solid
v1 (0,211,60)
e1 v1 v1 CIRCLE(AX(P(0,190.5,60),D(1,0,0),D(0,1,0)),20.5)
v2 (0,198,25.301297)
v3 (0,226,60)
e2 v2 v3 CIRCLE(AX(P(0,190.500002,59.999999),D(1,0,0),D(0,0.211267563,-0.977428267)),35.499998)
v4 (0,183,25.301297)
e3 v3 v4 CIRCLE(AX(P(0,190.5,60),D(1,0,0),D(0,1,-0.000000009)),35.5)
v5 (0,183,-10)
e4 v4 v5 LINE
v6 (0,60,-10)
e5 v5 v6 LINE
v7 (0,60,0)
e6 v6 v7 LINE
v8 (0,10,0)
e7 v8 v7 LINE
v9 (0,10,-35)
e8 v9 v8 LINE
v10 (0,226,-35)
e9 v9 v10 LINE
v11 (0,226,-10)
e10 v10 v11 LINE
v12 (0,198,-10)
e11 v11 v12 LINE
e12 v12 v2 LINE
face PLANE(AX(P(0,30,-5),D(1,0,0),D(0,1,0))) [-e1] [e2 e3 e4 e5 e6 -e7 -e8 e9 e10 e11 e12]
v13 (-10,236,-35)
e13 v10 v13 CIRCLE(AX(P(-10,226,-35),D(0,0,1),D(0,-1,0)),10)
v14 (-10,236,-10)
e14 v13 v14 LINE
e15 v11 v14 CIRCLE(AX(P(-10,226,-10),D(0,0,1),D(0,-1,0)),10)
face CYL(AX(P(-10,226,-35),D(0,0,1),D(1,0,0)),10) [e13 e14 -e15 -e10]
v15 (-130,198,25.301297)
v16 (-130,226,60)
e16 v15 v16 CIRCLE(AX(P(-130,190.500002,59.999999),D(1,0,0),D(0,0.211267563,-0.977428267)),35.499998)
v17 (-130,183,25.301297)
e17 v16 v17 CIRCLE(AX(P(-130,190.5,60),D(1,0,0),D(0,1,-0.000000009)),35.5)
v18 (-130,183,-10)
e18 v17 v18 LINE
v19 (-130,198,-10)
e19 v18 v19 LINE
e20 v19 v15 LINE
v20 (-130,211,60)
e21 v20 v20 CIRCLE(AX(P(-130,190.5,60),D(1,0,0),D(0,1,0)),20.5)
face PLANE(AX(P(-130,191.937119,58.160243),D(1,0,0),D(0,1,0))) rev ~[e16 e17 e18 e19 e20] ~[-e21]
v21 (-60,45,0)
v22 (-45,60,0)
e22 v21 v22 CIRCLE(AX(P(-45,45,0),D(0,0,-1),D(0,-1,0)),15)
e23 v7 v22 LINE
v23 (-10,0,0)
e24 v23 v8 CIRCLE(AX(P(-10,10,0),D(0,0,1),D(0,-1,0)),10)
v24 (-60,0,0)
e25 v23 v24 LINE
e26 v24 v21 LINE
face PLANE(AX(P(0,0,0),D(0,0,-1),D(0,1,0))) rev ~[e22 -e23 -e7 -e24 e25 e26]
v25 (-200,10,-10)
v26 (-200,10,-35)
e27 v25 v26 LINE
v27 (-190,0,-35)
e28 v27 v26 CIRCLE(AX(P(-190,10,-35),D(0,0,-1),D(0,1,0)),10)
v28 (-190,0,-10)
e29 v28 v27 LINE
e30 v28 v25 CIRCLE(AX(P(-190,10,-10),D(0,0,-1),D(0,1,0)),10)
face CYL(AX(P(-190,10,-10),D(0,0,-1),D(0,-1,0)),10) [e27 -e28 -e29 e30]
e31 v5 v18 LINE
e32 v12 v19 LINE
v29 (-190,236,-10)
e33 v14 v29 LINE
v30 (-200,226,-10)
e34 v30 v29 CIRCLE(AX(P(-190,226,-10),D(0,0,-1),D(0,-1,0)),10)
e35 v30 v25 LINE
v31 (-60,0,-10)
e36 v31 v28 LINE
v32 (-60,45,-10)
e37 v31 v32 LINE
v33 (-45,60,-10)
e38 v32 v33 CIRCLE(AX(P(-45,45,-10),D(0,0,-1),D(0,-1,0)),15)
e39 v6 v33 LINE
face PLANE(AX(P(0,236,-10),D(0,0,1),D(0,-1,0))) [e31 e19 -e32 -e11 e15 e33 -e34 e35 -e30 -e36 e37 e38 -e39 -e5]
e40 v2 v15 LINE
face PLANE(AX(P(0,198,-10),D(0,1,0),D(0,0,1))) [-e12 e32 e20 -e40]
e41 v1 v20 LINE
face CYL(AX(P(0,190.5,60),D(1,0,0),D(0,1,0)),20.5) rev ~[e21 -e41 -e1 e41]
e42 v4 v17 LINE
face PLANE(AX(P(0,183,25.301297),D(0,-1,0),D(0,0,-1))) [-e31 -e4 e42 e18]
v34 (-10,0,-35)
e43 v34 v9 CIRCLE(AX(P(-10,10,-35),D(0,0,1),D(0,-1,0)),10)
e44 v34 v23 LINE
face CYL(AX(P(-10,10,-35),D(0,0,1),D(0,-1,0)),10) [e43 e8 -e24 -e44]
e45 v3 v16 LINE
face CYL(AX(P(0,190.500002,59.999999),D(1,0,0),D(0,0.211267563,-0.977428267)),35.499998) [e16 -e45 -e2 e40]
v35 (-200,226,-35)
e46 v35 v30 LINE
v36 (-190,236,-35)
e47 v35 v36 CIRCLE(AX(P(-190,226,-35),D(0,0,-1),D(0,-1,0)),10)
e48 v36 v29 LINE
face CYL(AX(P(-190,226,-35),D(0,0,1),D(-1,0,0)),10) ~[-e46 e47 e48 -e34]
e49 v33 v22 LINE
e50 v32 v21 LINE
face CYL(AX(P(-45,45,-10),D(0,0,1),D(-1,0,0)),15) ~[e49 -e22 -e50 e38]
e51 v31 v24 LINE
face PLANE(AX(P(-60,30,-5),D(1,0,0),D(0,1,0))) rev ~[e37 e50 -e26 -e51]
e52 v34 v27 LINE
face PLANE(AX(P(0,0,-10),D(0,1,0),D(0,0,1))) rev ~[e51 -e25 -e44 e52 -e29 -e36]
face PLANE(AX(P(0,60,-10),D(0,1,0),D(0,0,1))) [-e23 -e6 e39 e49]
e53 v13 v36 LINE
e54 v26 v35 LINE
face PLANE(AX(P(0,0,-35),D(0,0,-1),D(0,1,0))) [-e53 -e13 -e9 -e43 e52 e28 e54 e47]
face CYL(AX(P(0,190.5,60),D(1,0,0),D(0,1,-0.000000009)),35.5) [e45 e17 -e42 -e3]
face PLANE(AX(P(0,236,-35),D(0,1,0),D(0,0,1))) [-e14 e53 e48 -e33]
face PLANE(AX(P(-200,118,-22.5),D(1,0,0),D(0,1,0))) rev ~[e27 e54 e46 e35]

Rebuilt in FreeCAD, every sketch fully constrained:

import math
import FreeCAD as App
import Part
import Sketcher

V = App.Vector
Q = App.Units.Quantity


def edges_at(feature, points):
    """Names of the edges that pass closest to the given points."""
    edges = feature.Shape.Edges
    near = lambda p: min(range(len(edges)), key=lambda i: edges[i].distToShape(Part.Vertex(*p))[0])
    return sorted({f"Edge{near(p) + 1}" for p in points})

doc = App.newDocument("Part")
body = doc.addObject("PartDesign::Body", "Body")

sketch1 = body.newObject("Sketcher::SketchObject", "Sketch")
sketch1.AttachmentSupport = (doc.getObject("YZ_Plane"), [""])
sketch1.MapMode = "FlatFace"
sketch1.addGeometry(Part.LineSegment(V(0, -10, 0), V(0, -35, 0)), False)
sketch1.addGeometry(Part.LineSegment(V(0, -35, 0), V(236, -35, 0)), False)
sketch1.addGeometry(Part.LineSegment(V(236, -35, 0), V(236, -10, 0)), False)
sketch1.addGeometry(Part.LineSegment(V(236, -10, 0), V(0, -10, 0)), False)
sketch1.addConstraint(Sketcher.Constraint("Coincident", 0, 2, 1, 1))
sketch1.addConstraint(Sketcher.Constraint("Coincident", 1, 2, 2, 1))
sketch1.addConstraint(Sketcher.Constraint("Coincident", 2, 2, 3, 1))
sketch1.addConstraint(Sketcher.Constraint("Coincident", 3, 2, 0, 1))
sketch1.addConstraint(Sketcher.Constraint("Vertical", 0))
sketch1.addConstraint(Sketcher.Constraint("Horizontal", 1))
sketch1.addConstraint(Sketcher.Constraint("Vertical", 2))
sketch1.addConstraint(Sketcher.Constraint("Horizontal", 3))
sketch1.addConstraint(Sketcher.Constraint("PointOnObject", 0, 2, -2))
sketch1.addConstraint(Sketcher.Constraint("DistanceX", 1, 1, 1, 2, Q("236 mm")))
sketch1.addConstraint(Sketcher.Constraint("DistanceY", 0, 2, 0, 1, Q("25 mm")))
sketch1.addConstraint(Sketcher.Constraint("DistanceY", 0, 2, -1, 1, Q("35 mm")))
pad1 = body.newObject("PartDesign::Pad", "Pad")
pad1.Profile = sketch1
pad1.Length = 200
pad1.Reversed = True

sketch2 = body.newObject("Sketcher::SketchObject", "Sketch001")
sketch2.AttachmentSupport = (doc.getObject("YZ_Plane"), [""])
sketch2.MapMode = "FlatFace"
sketch2.addGeometry(Part.LineSegment(V(0, 0, 0), V(0, -10, 0)), False)
sketch2.addGeometry(Part.LineSegment(V(0, -10, 0), V(60, -10, 0)), False)
sketch2.addGeometry(Part.LineSegment(V(60, -10, 0), V(60, 0, 0)), False)
sketch2.addGeometry(Part.LineSegment(V(60, 0, 0), V(0, 0, 0)), False)
sketch2.addConstraint(Sketcher.Constraint("Coincident", 0, 2, 1, 1))
sketch2.addConstraint(Sketcher.Constraint("Coincident", 1, 2, 2, 1))
sketch2.addConstraint(Sketcher.Constraint("Coincident", 2, 2, 3, 1))
sketch2.addConstraint(Sketcher.Constraint("Coincident", 3, 2, 0, 1))
sketch2.addConstraint(Sketcher.Constraint("Vertical", 0))
sketch2.addConstraint(Sketcher.Constraint("Horizontal", 1))
sketch2.addConstraint(Sketcher.Constraint("Vertical", 2))
sketch2.addConstraint(Sketcher.Constraint("Horizontal", 3))
sketch2.addConstraint(Sketcher.Constraint("Coincident", 3, 2, -1, 1))
sketch2.addConstraint(Sketcher.Constraint("DistanceX", 1, 1, 1, 2, Q("60 mm")))
sketch2.addConstraint(Sketcher.Constraint("DistanceY", 0, 2, 0, 1, Q("10 mm")))
pad2 = body.newObject("PartDesign::Pad", "Pad001")
pad2.Profile = sketch2
pad2.Length = 60
pad2.Reversed = True

sketch3 = body.newObject("Sketcher::SketchObject", "Sketch002")
sketch3.AttachmentSupport = (doc.getObject("YZ_Plane"), [""])
sketch3.MapMode = "FlatFace"
sketch3.addGeometry(Part.ArcOfCircle(Part.Circle(V(190.5, 60, 0), V(0, 0, 1), 35.5), math.radians(-0.000001), math.radians(257.803353)), False)
sketch3.addGeometry(Part.LineSegment(V(183, 25.301297, 0), V(183, -10, 0)), False)
sketch3.addGeometry(Part.LineSegment(V(183, -10, 0), V(198, -10, 0)), False)
sketch3.addGeometry(Part.LineSegment(V(198, -10, 0), V(198, 25.301297, 0)), False)
sketch3.addGeometry(Part.ArcOfCircle(Part.Circle(V(190.500002, 59.999999, 0), V(0, 0, 1), 35.499998), math.radians(-77.803355), math.radians(0.000002)), False)
sketch3.addGeometry(Part.Circle(V(190.5, 60, 0), V(0, 0, 1), 20.5), False)
sketch3.addConstraint(Sketcher.Constraint("Coincident", 0, 2, 1, 1))
sketch3.addConstraint(Sketcher.Constraint("Coincident", 1, 2, 2, 1))
sketch3.addConstraint(Sketcher.Constraint("Coincident", 2, 2, 3, 1))
sketch3.addConstraint(Sketcher.Constraint("Coincident", 3, 2, 4, 1))
sketch3.addConstraint(Sketcher.Constraint("Tangent", 4, 2, 0, 1))
sketch3.addConstraint(Sketcher.Constraint("Vertical", 1))
sketch3.addConstraint(Sketcher.Constraint("Horizontal", 2))
sketch3.addConstraint(Sketcher.Constraint("Vertical", 3))
sketch3.addConstraint(Sketcher.Constraint("Coincident", 5, 3, 0, 3))
sketch3.addConstraint(Sketcher.Constraint("Horizontal", 0, 2, 3, 2))
sketch3.addConstraint(Sketcher.Constraint("Horizontal", 5, 3, 4, 2))
sketch3.addConstraint(Sketcher.Constraint("Diameter", 5, Q("41 mm")))
sketch3.addConstraint(Sketcher.Constraint("Radius", 0, Q("35.5 mm")))
sketch3.addConstraint(Sketcher.Constraint("Radius", 4, Q("35.499998 mm")))
sketch3.addConstraint(Sketcher.Constraint("DistanceX", 2, 1, 2, 2, Q("15 mm")))
sketch3.addConstraint(Sketcher.Constraint("DistanceY", -1, 1, 0, 3, Q("60 mm")))
sketch3.addConstraint(Sketcher.Constraint("DistanceX", -1, 1, 0, 2, Q("183 mm")))
sketch3.addConstraint(Sketcher.Constraint("DistanceY", 1, 2, -1, 1, Q("10 mm")))
pad3 = body.newObject("PartDesign::Pad", "Pad002")
pad3.Profile = sketch3
pad3.Length = 130
pad3.Reversed = True
doc.recompute()

fillet = body.newObject("PartDesign::Fillet", "Fillet")
fillet.Base = (pad3, edges_at(pad3, [
    (0, 0, -17.5),
    (-200, 0, -22.5),
    (0, 236, -22.5),
    (-200, 236, -22.5),
]))
fillet.Radius = 10
doc.recompute()

fillet2 = body.newObject("PartDesign::Fillet", "Fillet001")
fillet2.Base = (fillet, edges_at(fillet, [(-60, 60, -5)]))
fillet2.Radius = 15

doc.recompute()
